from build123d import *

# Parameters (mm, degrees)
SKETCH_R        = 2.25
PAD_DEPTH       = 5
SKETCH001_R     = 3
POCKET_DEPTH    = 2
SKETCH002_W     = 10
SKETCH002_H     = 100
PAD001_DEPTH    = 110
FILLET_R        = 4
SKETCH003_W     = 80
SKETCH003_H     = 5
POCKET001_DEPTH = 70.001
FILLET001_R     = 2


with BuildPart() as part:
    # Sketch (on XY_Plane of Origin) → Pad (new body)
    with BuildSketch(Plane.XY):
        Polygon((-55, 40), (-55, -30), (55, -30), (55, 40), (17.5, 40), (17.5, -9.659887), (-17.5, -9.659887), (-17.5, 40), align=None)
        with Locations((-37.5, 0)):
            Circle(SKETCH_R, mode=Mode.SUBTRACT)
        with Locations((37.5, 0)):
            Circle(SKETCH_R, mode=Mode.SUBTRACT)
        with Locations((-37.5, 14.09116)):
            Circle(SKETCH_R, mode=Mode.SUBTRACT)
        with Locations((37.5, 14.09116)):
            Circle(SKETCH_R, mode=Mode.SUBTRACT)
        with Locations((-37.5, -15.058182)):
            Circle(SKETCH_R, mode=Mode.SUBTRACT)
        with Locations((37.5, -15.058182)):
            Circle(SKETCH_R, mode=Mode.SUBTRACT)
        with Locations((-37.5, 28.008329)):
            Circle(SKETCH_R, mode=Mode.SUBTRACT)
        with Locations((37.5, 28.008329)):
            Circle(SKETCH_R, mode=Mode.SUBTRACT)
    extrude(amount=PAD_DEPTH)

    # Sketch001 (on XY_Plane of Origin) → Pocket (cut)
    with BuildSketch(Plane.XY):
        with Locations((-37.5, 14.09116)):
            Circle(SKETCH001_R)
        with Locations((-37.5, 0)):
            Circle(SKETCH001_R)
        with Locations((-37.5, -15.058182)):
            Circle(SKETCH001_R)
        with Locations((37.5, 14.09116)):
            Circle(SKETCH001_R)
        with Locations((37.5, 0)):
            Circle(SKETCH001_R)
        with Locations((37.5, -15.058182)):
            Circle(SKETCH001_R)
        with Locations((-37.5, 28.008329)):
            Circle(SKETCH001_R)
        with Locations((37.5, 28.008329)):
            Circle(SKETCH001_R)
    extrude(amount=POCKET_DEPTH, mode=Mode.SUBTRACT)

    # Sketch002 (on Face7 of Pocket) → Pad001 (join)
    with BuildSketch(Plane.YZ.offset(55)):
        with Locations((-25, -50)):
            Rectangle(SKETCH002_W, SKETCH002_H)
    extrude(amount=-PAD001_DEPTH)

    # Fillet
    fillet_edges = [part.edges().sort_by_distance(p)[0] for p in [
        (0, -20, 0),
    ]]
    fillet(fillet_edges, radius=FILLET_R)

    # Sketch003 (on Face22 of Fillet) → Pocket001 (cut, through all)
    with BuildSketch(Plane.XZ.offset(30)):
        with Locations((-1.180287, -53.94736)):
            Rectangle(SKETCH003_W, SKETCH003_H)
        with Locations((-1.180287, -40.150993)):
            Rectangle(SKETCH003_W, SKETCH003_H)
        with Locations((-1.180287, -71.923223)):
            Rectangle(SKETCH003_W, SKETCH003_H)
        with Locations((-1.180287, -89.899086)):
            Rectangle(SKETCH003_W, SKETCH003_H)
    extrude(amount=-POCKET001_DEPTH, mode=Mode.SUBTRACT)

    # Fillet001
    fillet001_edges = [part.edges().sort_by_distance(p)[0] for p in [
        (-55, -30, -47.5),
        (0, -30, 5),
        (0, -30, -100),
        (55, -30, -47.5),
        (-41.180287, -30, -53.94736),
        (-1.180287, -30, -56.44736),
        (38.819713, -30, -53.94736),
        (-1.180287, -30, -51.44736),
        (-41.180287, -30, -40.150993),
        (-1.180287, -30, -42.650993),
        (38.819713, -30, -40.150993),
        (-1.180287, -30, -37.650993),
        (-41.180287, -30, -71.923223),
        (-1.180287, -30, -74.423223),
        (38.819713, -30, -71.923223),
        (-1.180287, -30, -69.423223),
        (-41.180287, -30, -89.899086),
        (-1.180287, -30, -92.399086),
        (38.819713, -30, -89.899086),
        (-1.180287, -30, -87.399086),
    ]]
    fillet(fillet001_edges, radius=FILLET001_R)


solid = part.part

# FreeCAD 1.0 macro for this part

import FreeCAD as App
import Part
import Sketcher
from FreeCAD import Vector


def edges_at(feature, points):
    """Names of the edges that pass closest to the given points."""
    edges = feature.Shape.Edges
    near = lambda p: min(range(len(edges)), key=lambda i: edges[i].distToShape(Part.Vertex(*p))[0])
    return sorted({f"Edge{near(p) + 1}" for p in points})

doc = App.newDocument("Part")
params = doc.addObject("Spreadsheet::Sheet", "Params")
for row, (alias, value) in enumerate([
    ("sketch1_diameter", "4.5 mm"),
    ("sketch1_width", "110 mm"),
    ("sketch1_width2", "35 mm"),
    ("sketch1_height", "70 mm"),
    ("pad1_length", "5 mm"),
    ("sketch2_diameter", "6 mm"),
    ("pocket1_length", "2 mm"),
    ("sketch3_width", "10 mm"),
    ("sketch3_height", "100 mm"),
    ("pad2_length", "110 mm"),
    ("fillet_radius", "4 mm"),
    ("sketch4_width", "80 mm"),
    ("sketch4_height", "5 mm"),
    ("fillet2_radius", "2 mm"),
], start=1):
    params.set(f"A{row}", alias)
    params.set(f"B{row}", "=" + value)
    params.setAlias(f"B{row}", alias)

body = doc.addObject("PartDesign::Body", "Body")

sketch1 = body.newObject("Sketcher::SketchObject", "Sketch")
sketch1.AttachmentSupport = (doc.getObject("XY_Plane"), [""])
sketch1.MapMode = "FlatFace"
sketch1.addGeometry([
    Part.LineSegment(Vector(-55, 40, 0), Vector(-55, -30, 0)),
    Part.LineSegment(Vector(-55, -30, 0), Vector(55, -30, 0)),
    Part.LineSegment(Vector(55, -30, 0), Vector(55, 40, 0)),
    Part.LineSegment(Vector(55, 40, 0), Vector(17.5, 40, 0)),
    Part.LineSegment(Vector(17.5, 40, 0), Vector(17.5, -9.7, 0)),
    Part.LineSegment(Vector(17.5, -9.7, 0), Vector(-17.5, -9.7, 0)),
    Part.LineSegment(Vector(-17.5, -9.7, 0), Vector(-17.5, 40, 0)),
    Part.LineSegment(Vector(-17.5, 40, 0), Vector(-55, 40, 0)),
    Part.Circle(Vector(-37.5, -15.1, 0), Vector(0, 0, 1), 2.2),
    Part.Circle(Vector(-37.5, 0, 0), Vector(0, 0, 1), 2.2),
    Part.Circle(Vector(37.5, -15.1, 0), Vector(0, 0, 1), 2.2),
    Part.Circle(Vector(37.5, 0, 0), Vector(0, 0, 1), 2.2),
    Part.Circle(Vector(-37.5, 14.1, 0), Vector(0, 0, 1), 2.2),
    Part.Circle(Vector(-37.5, 28, 0), Vector(0, 0, 1), 2.2),
    Part.Circle(Vector(37.5, 14.1, 0), Vector(0, 0, 1), 2.2),
    Part.Circle(Vector(37.5, 28, 0), Vector(0, 0, 1), 2.2),
], False)
sketch1.addConstraint([
    Sketcher.Constraint("Coincident", 0, 2, 1, 1),
    Sketcher.Constraint("Coincident", 1, 2, 2, 1),
    Sketcher.Constraint("Coincident", 2, 2, 3, 1),
    Sketcher.Constraint("Coincident", 3, 2, 4, 1),
    Sketcher.Constraint("Coincident", 4, 2, 5, 1),
    Sketcher.Constraint("Coincident", 5, 2, 6, 1),
    Sketcher.Constraint("Coincident", 6, 2, 7, 1),
    Sketcher.Constraint("Coincident", 7, 2, 0, 1),
    Sketcher.Constraint("Vertical", 0),
    Sketcher.Constraint("Horizontal", 1),
    Sketcher.Constraint("Vertical", 2),
    Sketcher.Constraint("Horizontal", 3),
    Sketcher.Constraint("Vertical", 4),
    Sketcher.Constraint("Horizontal", 5),
    Sketcher.Constraint("Vertical", 6),
    Sketcher.Constraint("Horizontal", 7),
    Sketcher.Constraint("Equal", 8, 9),
    Sketcher.Constraint("Equal", 9, 10),
    Sketcher.Constraint("Equal", 10, 11),
    Sketcher.Constraint("Equal", 11, 12),
    Sketcher.Constraint("Equal", 12, 13),
    Sketcher.Constraint("Equal", 13, 14),
    Sketcher.Constraint("Equal", 14, 15),
    Sketcher.Constraint("Symmetric", 9, 3, 11, 3, -1, 1),
    Sketcher.Constraint("Symmetric", 8, 3, 10, 3, -2),
    Sketcher.Constraint("Symmetric", 12, 3, 14, 3, -2),
    Sketcher.Constraint("Symmetric", 13, 3, 15, 3, -2),
    Sketcher.Constraint("Symmetric", 3, 2, 6, 2, -2),
    Sketcher.Constraint("PointOnObject", 9, 3, -1),
    Sketcher.Constraint("Vertical", 8, 3, 9, 3),
    Sketcher.Constraint("Vertical", 9, 3, 12, 3),
    Sketcher.Constraint("Vertical", 12, 3, 13, 3),
    Sketcher.Constraint("Equal", 3, 7),
    Sketcher.Constraint("Diameter", 8, 4.5),
    Sketcher.Constraint("DistanceX", 1, 1, 1, 2, 110.0),
    Sketcher.Constraint("DistanceX", 5, 2, 5, 1, 35.0),
    Sketcher.Constraint("DistanceY", 0, 2, 0, 1, 70.0),
    Sketcher.Constraint("DistanceY", 0, 2, -1, 1, 30.0),
    Sketcher.Constraint("DistanceX", 8, 3, 10, 3, 75.0),
    Sketcher.Constraint("DistanceY", 4, 2, 4, 1, 49.659887),
    Sketcher.Constraint("DistanceY", -1, 1, 12, 3, 14.09116),
    Sketcher.Constraint("DistanceY", -1, 1, 13, 3, 28.008329),
    Sketcher.Constraint("DistanceY", 8, 3, 13, 3, 43.066511),
])
sketch1.setExpression("Constraints[33]", "Params.sketch1_diameter")
sketch1.setExpression("Constraints[34]", "Params.sketch1_width")
sketch1.setExpression("Constraints[35]", "Params.sketch1_width2")
sketch1.setExpression("Constraints[36]", "Params.sketch1_height")
pad1 = body.newObject("PartDesign::Pad", "Pad")
pad1.Profile = sketch1
pad1.setExpression("Length", "Params.pad1_length")

sketch2 = body.newObject("Sketcher::SketchObject", "Sketch001")
sketch2.AttachmentSupport = (doc.getObject("XY_Plane"), [""])
sketch2.MapMode = "FlatFace"
sketch2.addGeometry([
    Part.Circle(Vector(-37.5, 14.1, 0), Vector(0, 0, 1), 3),
    Part.Circle(Vector(-37.5, 0, 0), Vector(0, 0, 1), 3),
    Part.Circle(Vector(-37.5, -15.1, 0), Vector(0, 0, 1), 3),
    Part.Circle(Vector(37.5, 14.1, 0), Vector(0, 0, 1), 3),
    Part.Circle(Vector(37.5, 0, 0), Vector(0, 0, 1), 3),
    Part.Circle(Vector(37.5, -15.1, 0), Vector(0, 0, 1), 3),
    Part.Circle(Vector(-37.5, 28, 0), Vector(0, 0, 1), 3),
    Part.Circle(Vector(37.5, 28, 0), Vector(0, 0, 1), 3),
], False)
sketch2.addConstraint([
    Sketcher.Constraint("Equal", 0, 1),
    Sketcher.Constraint("Equal", 1, 2),
    Sketcher.Constraint("Equal", 2, 3),
    Sketcher.Constraint("Equal", 3, 4),
    Sketcher.Constraint("Equal", 4, 5),
    Sketcher.Constraint("Equal", 5, 6),
    Sketcher.Constraint("Equal", 6, 7),
    Sketcher.Constraint("Symmetric", 1, 3, 4, 3, -1, 1),
    Sketcher.Constraint("Symmetric", 0, 3, 3, 3, -2),
    Sketcher.Constraint("Symmetric", 2, 3, 5, 3, -2),
    Sketcher.Constraint("Symmetric", 6, 3, 7, 3, -2),
    Sketcher.Constraint("PointOnObject", 1, 3, -1),
    Sketcher.Constraint("Vertical", 0, 3, 1, 3),
    Sketcher.Constraint("Vertical", 1, 3, 2, 3),
    Sketcher.Constraint("Vertical", 2, 3, 6, 3),
    Sketcher.Constraint("Diameter", 0, 6.0),
    Sketcher.Constraint("DistanceX", 0, 3, 3, 3, 75.0),
    Sketcher.Constraint("DistanceY", -1, 1, 0, 3, 14.09116),
    Sketcher.Constraint("DistanceY", -1, 1, 6, 3, 28.008329),
    Sketcher.Constraint("DistanceY", 2, 3, 6, 3, 43.066511),
])
sketch2.setExpression("Constraints[15]", "Params.sketch2_diameter")
pocket1 = body.newObject("PartDesign::Pocket", "Pocket")
pocket1.Profile = sketch2
pocket1.setExpression("Length", "Params.pocket1_length")
pocket1.Reversed = True

sketch3 = body.newObject("Sketcher::SketchObject", "Sketch002")
sketch3.AttachmentSupport = (doc.getObject("YZ_Plane"), [""])
sketch3.MapMode = "FlatFace"
sketch3.AttachmentOffset = App.Placement(Vector(0, 0, 55), App.Rotation())
sketch3.addGeometry([
    Part.LineSegment(Vector(-30, 0, 0), Vector(-30, -100, 0)),
    Part.LineSegment(Vector(-30, -100, 0), Vector(-20, -100, 0)),
    Part.LineSegment(Vector(-20, -100, 0), Vector(-20, 0, 0)),
    Part.LineSegment(Vector(-20, 0, 0), Vector(-30, 0, 0)),
], False)
sketch3.addConstraint([
    Sketcher.Constraint("Coincident", 0, 2, 1, 1),
    Sketcher.Constraint("Coincident", 1, 2, 2, 1),
    Sketcher.Constraint("Coincident", 2, 2, 3, 1),
    Sketcher.Constraint("Coincident", 3, 2, 0, 1),
    Sketcher.Constraint("Vertical", 0),
    Sketcher.Constraint("Horizontal", 1),
    Sketcher.Constraint("Vertical", 2),
    Sketcher.Constraint("Horizontal", 3),
    Sketcher.Constraint("PointOnObject", 2, 2, -1),
    Sketcher.Constraint("DistanceX", 1, 1, 1, 2, 10.0),
    Sketcher.Constraint("DistanceY", 0, 2, 0, 1, 100.0),
    Sketcher.Constraint("DistanceX", 0, 2, -1, 1, 30.0),
])
sketch3.setExpression("Constraints[9]", "Params.sketch3_width")
sketch3.setExpression("Constraints[10]", "Params.sketch3_height")
pad2 = body.newObject("PartDesign::Pad", "Pad001")
pad2.Profile = sketch3
pad2.setExpression("Length", "Params.pad2_length")
pad2.Reversed = True
doc.recompute()

fillet = body.newObject("PartDesign::Fillet", "Fillet")
fillet.Base = (pad2, edges_at(pad2, [(0, -20, 0)]))
fillet.setExpression("Radius", "Params.fillet_radius")

sketch4 = body.newObject("Sketcher::SketchObject", "Sketch003")
sketch4.AttachmentSupport = (doc.getObject("XZ_Plane"), [""])
sketch4.MapMode = "FlatFace"
sketch4.AttachmentOffset = App.Placement(Vector(0, 0, 30), App.Rotation())
sketch4.addGeometry([
    Part.LineSegment(Vector(-41, -51, 0), Vector(-41, -56, 0)),
    Part.LineSegment(Vector(-41, -56, 0), Vector(39, -56, 0)),
    Part.LineSegment(Vector(39, -56, 0), Vector(39, -51, 0)),
    Part.LineSegment(Vector(39, -51, 0), Vector(-41, -51, 0)),
    Part.LineSegment(Vector(-41, -38, 0), Vector(-41, -43, 0)),
    Part.LineSegment(Vector(-41, -43, 0), Vector(39, -43, 0)),
    Part.LineSegment(Vector(39, -43, 0), Vector(39, -38, 0)),
    Part.LineSegment(Vector(39, -38, 0), Vector(-41, -38, 0)),
    Part.LineSegment(Vector(-41, -69, 0), Vector(-41, -74, 0)),
    Part.LineSegment(Vector(-41, -74, 0), Vector(39, -74, 0)),
    Part.LineSegment(Vector(39, -74, 0), Vector(39, -69, 0)),
    Part.LineSegment(Vector(39, -69, 0), Vector(-41, -69, 0)),
    Part.LineSegment(Vector(-41, -87, 0), Vector(-41, -92, 0)),
    Part.LineSegment(Vector(-41, -92, 0), Vector(39, -92, 0)),
    Part.LineSegment(Vector(39, -92, 0), Vector(39, -87, 0)),
    Part.LineSegment(Vector(39, -87, 0), Vector(-41, -87, 0)),
], False)
sketch4.addConstraint([
    Sketcher.Constraint("Coincident", 0, 2, 1, 1),
    Sketcher.Constraint("Coincident", 1, 2, 2, 1),
    Sketcher.Constraint("Coincident", 2, 2, 3, 1),
    Sketcher.Constraint("Coincident", 3, 2, 0, 1),
    Sketcher.Constraint("Coincident", 4, 2, 5, 1),
    Sketcher.Constraint("Coincident", 5, 2, 6, 1),
    Sketcher.Constraint("Coincident", 6, 2, 7, 1),
    Sketcher.Constraint("Coincident", 7, 2, 4, 1),
    Sketcher.Constraint("Coincident", 8, 2, 9, 1),
    Sketcher.Constraint("Coincident", 9, 2, 10, 1),
    Sketcher.Constraint("Coincident", 10, 2, 11, 1),
    Sketcher.Constraint("Coincident", 11, 2, 8, 1),
    Sketcher.Constraint("Coincident", 12, 2, 13, 1),
    Sketcher.Constraint("Coincident", 13, 2, 14, 1),
    Sketcher.Constraint("Coincident", 14, 2, 15, 1),
    Sketcher.Constraint("Coincident", 15, 2, 12, 1),
    Sketcher.Constraint("Vertical", 0),
    Sketcher.Constraint("Horizontal", 1),
    Sketcher.Constraint("Vertical", 2),
    Sketcher.Constraint("Horizontal", 3),
    Sketcher.Constraint("Vertical", 4),
    Sketcher.Constraint("Horizontal", 5),
    Sketcher.Constraint("Vertical", 6),
    Sketcher.Constraint("Horizontal", 7),
    Sketcher.Constraint("Vertical", 8),
    Sketcher.Constraint("Horizontal", 9),
    Sketcher.Constraint("Vertical", 10),
    Sketcher.Constraint("Horizontal", 11),
    Sketcher.Constraint("Vertical", 12),
    Sketcher.Constraint("Horizontal", 13),
    Sketcher.Constraint("Vertical", 14),
    Sketcher.Constraint("Horizontal", 15),
    Sketcher.Constraint("Vertical", 3, 2, 4, 2),
    Sketcher.Constraint("Vertical", 2, 2, 5, 2),
    Sketcher.Constraint("Vertical", 7, 2, 8, 2),
    Sketcher.Constraint("Vertical", 6, 2, 9, 2),
    Sketcher.Constraint("Vertical", 11, 2, 12, 2),
    Sketcher.Constraint("Vertical", 10, 2, 13, 2),
    Sketcher.Constraint("Equal", 2, 4),
    Sketcher.Constraint("Equal", 6, 8),
    Sketcher.Constraint("Equal", 10, 12),
    Sketcher.Constraint("DistanceX", 1, 1, 1, 2, 80.0),
    Sketcher.Constraint("DistanceY", 0, 2, 0, 1, 5.0),
    Sketcher.Constraint("DistanceY", 0, 2, -1, 1, 56.44736),
    Sketcher.Constraint("DistanceY", 8, 2, 4, 2, 31.77223),
    Sketcher.Constraint("DistanceX", 0, 2, -1, 1, 41.180287),
    Sketcher.Constraint("DistanceY", 4, 2, -1, 1, 42.650993),
    Sketcher.Constraint("DistanceY", 12, 2, -1, 1, 92.399086),
])
sketch4.setExpression("Constraints[41]", "Params.sketch4_width")
sketch4.setExpression("Constraints[42]", "Params.sketch4_height")
pocket2 = body.newObject("PartDesign::Pocket", "Pocket001")
pocket2.Profile = sketch4
pocket2.Type = "ThroughAll"
doc.recompute()

fillet2 = body.newObject("PartDesign::Fillet", "Fillet001")
fillet2.Base = (pocket2, edges_at(pocket2, [
    (-55, -30, -47.5),
    (0, -30, 5),
    (0, -30, -100),
    (55, -30, -47.5),
    (-41.18, -30, -53.947),
    (-1.18, -30, -56.447),
    (38.82, -30, -53.947),
    (-1.18, -30, -51.447),
    (-41.18, -30, -40.151),
    (-1.18, -30, -42.651),
    (38.82, -30, -40.151),
    (-1.18, -30, -37.651),
    (-41.18, -30, -71.923),
    (-1.18, -30, -74.423),
    (38.82, -30, -71.923),
    (-1.18, -30, -69.423),
    (-41.18, -30, -89.899),
    (-1.18, -30, -92.399),
    (38.82, -30, -89.899),
    (-1.18, -30, -87.399),
]))
fillet2.setExpression("Radius", "Params.fillet2_radius")

doc.recompute()
